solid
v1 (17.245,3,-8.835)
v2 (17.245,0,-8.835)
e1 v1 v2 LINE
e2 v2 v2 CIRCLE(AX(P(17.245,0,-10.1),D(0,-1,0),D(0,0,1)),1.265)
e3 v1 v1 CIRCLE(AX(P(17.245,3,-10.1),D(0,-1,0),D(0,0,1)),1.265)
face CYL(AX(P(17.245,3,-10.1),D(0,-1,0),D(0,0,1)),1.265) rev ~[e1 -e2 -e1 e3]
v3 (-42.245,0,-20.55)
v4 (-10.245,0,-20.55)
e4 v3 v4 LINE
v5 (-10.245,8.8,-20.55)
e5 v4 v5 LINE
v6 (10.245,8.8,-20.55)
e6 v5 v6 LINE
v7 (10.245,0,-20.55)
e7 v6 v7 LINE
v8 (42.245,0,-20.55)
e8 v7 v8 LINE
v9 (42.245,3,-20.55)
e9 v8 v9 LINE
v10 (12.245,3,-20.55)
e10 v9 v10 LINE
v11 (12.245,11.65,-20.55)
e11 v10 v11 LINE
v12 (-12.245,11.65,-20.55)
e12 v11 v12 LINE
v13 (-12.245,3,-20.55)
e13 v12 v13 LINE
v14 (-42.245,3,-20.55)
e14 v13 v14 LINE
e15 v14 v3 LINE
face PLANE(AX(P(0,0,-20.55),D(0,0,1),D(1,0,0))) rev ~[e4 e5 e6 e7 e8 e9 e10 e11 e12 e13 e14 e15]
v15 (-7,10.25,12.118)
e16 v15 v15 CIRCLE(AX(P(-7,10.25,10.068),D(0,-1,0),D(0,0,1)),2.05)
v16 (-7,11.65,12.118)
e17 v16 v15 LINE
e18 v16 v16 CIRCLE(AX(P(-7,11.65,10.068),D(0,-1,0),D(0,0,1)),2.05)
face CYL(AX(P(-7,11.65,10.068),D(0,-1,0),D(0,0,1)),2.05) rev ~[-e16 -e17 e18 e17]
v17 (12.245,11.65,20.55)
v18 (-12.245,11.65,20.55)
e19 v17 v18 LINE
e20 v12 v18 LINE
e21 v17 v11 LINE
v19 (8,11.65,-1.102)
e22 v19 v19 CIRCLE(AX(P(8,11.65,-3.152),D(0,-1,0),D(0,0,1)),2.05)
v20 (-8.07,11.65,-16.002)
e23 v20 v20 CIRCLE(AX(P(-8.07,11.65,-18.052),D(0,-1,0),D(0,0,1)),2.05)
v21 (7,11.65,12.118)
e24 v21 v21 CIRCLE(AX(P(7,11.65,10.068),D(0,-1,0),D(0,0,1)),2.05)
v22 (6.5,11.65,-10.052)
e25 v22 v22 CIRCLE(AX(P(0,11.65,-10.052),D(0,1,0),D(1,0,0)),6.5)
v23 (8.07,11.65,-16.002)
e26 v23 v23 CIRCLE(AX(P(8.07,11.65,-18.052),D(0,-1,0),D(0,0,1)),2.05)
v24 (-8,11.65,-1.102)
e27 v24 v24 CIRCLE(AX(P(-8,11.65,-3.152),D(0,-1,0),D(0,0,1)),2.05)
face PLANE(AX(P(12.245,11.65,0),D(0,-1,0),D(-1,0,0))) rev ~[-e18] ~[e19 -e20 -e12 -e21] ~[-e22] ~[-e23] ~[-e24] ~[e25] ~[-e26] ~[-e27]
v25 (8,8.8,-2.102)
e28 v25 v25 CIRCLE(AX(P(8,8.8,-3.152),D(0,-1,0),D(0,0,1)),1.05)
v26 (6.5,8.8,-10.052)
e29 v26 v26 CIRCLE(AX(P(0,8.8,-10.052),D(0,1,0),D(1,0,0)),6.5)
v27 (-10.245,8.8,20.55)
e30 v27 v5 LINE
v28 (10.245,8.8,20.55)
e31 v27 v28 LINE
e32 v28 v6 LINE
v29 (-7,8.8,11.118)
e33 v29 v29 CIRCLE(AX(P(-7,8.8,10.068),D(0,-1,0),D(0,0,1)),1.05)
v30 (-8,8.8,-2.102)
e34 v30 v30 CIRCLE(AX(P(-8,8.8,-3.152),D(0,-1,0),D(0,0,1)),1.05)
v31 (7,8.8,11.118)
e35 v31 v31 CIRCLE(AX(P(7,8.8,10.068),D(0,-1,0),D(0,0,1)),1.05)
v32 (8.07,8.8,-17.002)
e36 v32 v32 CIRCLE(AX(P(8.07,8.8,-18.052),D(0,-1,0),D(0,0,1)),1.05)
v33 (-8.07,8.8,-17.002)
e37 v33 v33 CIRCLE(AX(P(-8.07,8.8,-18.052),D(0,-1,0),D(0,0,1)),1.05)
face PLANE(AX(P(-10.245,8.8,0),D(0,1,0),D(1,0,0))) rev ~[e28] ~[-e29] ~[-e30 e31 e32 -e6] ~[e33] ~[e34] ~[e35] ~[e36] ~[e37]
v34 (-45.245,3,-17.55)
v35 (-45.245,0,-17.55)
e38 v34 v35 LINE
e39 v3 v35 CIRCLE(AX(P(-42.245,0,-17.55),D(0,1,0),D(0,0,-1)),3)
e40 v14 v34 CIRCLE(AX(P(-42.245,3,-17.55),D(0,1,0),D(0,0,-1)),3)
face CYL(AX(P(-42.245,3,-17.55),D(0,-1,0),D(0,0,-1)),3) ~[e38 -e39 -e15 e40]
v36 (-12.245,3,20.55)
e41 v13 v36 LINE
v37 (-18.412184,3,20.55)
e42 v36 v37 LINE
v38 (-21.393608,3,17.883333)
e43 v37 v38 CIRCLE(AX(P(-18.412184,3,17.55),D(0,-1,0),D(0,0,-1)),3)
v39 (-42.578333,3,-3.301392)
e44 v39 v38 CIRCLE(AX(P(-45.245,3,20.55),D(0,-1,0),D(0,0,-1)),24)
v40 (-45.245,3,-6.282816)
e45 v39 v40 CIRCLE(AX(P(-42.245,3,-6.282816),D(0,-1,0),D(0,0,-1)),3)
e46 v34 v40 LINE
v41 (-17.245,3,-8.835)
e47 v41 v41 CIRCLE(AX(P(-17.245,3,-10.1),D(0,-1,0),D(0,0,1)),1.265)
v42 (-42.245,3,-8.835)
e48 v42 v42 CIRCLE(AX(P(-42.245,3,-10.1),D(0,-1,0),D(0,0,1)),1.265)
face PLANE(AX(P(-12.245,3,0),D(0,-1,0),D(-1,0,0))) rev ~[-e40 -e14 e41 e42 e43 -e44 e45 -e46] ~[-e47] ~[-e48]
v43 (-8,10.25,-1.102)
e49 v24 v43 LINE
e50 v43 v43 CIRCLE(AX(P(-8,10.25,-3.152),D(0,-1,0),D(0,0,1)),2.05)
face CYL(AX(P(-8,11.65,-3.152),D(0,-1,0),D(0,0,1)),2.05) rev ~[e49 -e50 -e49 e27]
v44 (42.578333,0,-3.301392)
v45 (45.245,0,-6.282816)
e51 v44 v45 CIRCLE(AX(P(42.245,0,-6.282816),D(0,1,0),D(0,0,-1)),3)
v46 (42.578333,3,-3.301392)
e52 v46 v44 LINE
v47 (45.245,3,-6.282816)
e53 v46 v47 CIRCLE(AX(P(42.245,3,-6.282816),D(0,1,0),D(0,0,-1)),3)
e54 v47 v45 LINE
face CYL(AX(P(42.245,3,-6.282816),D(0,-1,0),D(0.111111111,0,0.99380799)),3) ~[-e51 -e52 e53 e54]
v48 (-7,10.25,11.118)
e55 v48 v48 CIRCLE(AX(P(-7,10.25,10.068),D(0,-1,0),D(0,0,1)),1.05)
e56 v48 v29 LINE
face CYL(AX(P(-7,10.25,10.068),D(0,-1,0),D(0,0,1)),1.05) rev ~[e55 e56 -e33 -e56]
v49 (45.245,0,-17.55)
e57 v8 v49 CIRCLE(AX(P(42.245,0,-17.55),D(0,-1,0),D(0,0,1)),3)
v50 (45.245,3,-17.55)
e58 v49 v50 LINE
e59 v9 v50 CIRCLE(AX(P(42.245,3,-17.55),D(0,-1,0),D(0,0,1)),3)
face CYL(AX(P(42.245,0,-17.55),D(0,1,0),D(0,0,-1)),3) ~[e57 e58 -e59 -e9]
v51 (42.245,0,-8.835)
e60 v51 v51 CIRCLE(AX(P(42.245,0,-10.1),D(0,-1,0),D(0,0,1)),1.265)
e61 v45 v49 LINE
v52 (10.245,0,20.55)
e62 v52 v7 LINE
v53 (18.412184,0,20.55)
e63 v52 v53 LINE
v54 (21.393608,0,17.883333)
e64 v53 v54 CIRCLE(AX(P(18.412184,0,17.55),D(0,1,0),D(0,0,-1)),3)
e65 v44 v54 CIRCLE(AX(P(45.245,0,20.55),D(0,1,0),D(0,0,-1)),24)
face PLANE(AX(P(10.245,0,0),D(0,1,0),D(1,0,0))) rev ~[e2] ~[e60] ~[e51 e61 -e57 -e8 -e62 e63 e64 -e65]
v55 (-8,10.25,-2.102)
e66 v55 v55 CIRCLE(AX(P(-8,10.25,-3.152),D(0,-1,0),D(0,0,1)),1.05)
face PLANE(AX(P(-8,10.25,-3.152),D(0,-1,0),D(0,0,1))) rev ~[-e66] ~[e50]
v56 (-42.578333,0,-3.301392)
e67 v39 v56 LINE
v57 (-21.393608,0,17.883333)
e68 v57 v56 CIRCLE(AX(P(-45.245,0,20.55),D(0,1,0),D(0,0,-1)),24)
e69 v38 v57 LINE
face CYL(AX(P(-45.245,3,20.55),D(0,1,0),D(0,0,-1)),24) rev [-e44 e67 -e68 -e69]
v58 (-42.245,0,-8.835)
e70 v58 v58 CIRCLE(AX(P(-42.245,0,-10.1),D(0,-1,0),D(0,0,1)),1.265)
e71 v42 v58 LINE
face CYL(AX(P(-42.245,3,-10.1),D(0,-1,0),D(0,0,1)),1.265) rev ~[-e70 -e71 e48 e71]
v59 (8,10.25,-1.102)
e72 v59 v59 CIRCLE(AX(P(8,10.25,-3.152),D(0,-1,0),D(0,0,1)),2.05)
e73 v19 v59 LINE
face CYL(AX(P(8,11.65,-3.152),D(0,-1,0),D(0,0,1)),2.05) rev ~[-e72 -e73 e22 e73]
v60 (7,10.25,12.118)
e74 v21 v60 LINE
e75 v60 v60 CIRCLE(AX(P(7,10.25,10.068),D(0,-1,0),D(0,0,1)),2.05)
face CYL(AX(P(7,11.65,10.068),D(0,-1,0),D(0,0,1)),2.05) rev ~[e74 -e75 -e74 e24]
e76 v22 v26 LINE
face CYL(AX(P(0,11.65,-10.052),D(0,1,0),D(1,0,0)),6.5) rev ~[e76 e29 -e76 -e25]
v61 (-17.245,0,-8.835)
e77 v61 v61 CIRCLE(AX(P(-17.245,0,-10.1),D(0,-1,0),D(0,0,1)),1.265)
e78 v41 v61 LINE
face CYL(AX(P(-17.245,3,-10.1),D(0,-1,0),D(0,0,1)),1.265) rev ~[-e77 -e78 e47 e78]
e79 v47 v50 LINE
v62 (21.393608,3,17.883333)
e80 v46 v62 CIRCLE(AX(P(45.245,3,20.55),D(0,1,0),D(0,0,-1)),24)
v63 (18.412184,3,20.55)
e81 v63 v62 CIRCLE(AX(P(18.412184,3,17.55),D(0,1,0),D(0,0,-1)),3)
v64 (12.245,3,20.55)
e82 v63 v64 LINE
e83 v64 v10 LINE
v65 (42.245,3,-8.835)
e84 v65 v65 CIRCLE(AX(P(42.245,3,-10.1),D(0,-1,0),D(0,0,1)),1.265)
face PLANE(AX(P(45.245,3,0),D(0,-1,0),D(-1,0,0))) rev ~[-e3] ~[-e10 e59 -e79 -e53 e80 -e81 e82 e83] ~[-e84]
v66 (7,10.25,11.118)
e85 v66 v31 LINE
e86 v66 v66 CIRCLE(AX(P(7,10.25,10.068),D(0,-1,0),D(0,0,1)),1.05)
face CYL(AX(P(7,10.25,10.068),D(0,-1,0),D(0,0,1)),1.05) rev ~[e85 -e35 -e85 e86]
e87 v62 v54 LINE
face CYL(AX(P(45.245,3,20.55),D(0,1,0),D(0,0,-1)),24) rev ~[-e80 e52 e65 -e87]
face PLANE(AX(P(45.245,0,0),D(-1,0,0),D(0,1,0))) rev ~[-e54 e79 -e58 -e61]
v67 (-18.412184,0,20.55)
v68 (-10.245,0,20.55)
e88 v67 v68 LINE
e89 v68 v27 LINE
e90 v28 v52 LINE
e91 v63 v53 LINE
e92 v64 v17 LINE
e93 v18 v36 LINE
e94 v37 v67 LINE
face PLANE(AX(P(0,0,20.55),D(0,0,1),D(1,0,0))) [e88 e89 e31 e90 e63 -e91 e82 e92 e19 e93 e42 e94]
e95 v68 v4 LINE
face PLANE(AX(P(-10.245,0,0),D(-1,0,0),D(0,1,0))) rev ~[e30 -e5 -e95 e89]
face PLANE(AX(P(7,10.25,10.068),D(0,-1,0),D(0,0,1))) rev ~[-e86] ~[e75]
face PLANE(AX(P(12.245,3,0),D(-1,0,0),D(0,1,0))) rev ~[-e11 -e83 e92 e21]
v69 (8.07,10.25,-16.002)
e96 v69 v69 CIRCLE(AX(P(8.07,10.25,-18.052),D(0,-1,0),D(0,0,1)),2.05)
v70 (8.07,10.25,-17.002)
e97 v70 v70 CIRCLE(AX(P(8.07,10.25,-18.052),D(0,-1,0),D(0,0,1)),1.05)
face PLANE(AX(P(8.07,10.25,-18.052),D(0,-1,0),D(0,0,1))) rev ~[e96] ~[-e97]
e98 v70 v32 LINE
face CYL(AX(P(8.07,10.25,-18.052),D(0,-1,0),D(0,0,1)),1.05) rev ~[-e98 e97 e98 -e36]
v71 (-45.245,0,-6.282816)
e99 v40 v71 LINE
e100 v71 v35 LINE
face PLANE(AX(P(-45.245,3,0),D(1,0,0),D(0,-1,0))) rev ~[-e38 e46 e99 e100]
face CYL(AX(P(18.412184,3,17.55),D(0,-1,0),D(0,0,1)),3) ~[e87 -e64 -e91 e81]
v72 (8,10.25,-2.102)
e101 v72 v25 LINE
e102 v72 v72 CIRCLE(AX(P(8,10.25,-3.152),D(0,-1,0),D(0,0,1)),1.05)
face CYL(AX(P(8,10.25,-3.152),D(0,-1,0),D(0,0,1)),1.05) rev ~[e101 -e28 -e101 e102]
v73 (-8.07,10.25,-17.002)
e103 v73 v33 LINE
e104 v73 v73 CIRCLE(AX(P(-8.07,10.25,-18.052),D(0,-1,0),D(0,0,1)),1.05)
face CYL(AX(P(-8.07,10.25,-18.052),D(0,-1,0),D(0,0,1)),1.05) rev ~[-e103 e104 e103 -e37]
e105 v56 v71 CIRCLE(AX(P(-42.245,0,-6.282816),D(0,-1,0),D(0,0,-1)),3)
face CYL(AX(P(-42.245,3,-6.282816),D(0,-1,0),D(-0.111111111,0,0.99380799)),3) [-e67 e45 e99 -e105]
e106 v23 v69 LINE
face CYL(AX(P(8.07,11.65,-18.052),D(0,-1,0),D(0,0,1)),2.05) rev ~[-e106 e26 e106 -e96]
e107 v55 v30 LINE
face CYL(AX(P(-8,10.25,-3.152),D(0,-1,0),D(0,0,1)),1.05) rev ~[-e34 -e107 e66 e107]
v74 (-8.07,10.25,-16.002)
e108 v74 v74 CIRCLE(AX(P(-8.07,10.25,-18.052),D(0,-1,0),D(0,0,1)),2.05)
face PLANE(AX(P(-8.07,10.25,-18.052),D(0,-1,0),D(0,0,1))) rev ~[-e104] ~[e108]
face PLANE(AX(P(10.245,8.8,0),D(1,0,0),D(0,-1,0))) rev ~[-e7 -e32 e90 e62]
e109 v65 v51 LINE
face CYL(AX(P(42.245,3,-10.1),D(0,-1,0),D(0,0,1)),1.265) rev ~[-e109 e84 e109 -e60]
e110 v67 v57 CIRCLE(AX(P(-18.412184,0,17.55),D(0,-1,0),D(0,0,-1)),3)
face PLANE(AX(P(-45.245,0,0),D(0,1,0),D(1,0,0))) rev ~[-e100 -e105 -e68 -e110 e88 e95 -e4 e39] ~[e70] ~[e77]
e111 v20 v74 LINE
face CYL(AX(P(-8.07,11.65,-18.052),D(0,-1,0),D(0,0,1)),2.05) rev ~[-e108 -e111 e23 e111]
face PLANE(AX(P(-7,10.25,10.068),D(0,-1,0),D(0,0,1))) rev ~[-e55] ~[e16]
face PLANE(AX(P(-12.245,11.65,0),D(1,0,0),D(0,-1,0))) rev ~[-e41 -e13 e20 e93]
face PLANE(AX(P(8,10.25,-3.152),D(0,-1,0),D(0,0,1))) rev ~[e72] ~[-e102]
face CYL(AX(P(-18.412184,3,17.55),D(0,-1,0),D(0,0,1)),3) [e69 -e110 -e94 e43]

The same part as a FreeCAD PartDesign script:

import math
import FreeCAD as App
import Part
import Sketcher
from FreeCAD import Vector


def edges_at(feature, points):
    """Names of the edges that pass closest to the given points."""
    edges = feature.Shape.Edges
    near = lambda p: min(range(len(edges)), key=lambda i: edges[i].distToShape(Part.Vertex(*p))[0])
    return sorted({f"Edge{near(p) + 1}" for p in points})

doc = App.newDocument("Part")
body = doc.addObject("PartDesign::Body", "Body")

sketch1 = body.newObject("Sketcher::SketchObject", "Sketch")
sketch1.AttachmentSupport = (doc.getObject("XY_Plane"), [""])
sketch1.MapMode = "FlatFace"
sketch1.addGeometry([
    Part.LineSegment(Vector(12.2, 11.7, 0), Vector(-12.2, 11.7, 0)),
    Part.LineSegment(Vector(-12.2, 11.7, 0), Vector(-12.2, 3, 0)),
    Part.LineSegment(Vector(-12.2, 3, 0), Vector(-45.2, 3, 0)),
    Part.LineSegment(Vector(-45.2, 3, 0), Vector(-45.2, 0, 0)),
    Part.LineSegment(Vector(-45.2, 0, 0), Vector(-10.2, 0, 0)),
    Part.LineSegment(Vector(-10.2, 0, 0), Vector(-10.2, 8.8, 0)),
    Part.LineSegment(Vector(-10.2, 8.8, 0), Vector(10.2, 8.8, 0)),
    Part.LineSegment(Vector(10.2, 8.8, 0), Vector(10.2, 0, 0)),
    Part.LineSegment(Vector(10.2, 0, 0), Vector(45.2, 0, 0)),
    Part.LineSegment(Vector(45.2, 0, 0), Vector(45.2, 3, 0)),
    Part.LineSegment(Vector(45.2, 3, 0), Vector(12.2, 3, 0)),
    Part.LineSegment(Vector(12.2, 3, 0), Vector(12.2, 11.7, 0)),
], False)
sketch1.addConstraint([
    Sketcher.Constraint("Coincident", 0, 2, 1, 1),
    Sketcher.Constraint("Coincident", 1, 2, 2, 1),
    Sketcher.Constraint("Coincident", 2, 2, 3, 1),
    Sketcher.Constraint("Coincident", 3, 2, 4, 1),
    Sketcher.Constraint("Coincident", 4, 2, 5, 1),
    Sketcher.Constraint("Coincident", 5, 2, 6, 1),
    Sketcher.Constraint("Coincident", 6, 2, 7, 1),
    Sketcher.Constraint("Coincident", 7, 2, 8, 1),
    Sketcher.Constraint("Coincident", 8, 2, 9, 1),
    Sketcher.Constraint("Coincident", 9, 2, 10, 1),
    Sketcher.Constraint("Coincident", 10, 2, 11, 1),
    Sketcher.Constraint("Coincident", 11, 2, 0, 1),
    Sketcher.Constraint("Horizontal", 0),
    Sketcher.Constraint("Vertical", 1),
    Sketcher.Constraint("Horizontal", 2),
    Sketcher.Constraint("Vertical", 3),
    Sketcher.Constraint("Horizontal", 4),
    Sketcher.Constraint("Vertical", 5),
    Sketcher.Constraint("Horizontal", 6),
    Sketcher.Constraint("Vertical", 7),
    Sketcher.Constraint("Horizontal", 8),
    Sketcher.Constraint("Vertical", 9),
    Sketcher.Constraint("Horizontal", 10),
    Sketcher.Constraint("Vertical", 11),
    Sketcher.Constraint("Symmetric", 4, 2, 7, 2, -1, 1),
    Sketcher.Constraint("Symmetric", 3, 2, 8, 2, -2),
    Sketcher.Constraint("Symmetric", 1, 2, 10, 2, -2),
    Sketcher.Constraint("DistanceX", 2, 2, 2, 1, 33.0),
    Sketcher.Constraint("DistanceX", 4, 1, 4, 2, 35.0),
    Sketcher.Constraint("DistanceY", 3, 2, 3, 1, 3.0),
    Sketcher.Constraint("DistanceX", 6, 1, 6, 2, 20.49),
    Sketcher.Constraint("DistanceY", 1, 2, 5, 2, 5.8),
    Sketcher.Constraint("DistanceY", 5, 2, 0, 2, 2.85),
])
pad1 = body.newObject("PartDesign::Pad", "Pad")
pad1.Profile = sketch1
pad1.Length = 41.1
pad1.Midplane = True

sketch2 = body.newObject("Sketcher::SketchObject", "Sketch001")
sketch2.AttachmentSupport = (doc.getObject("XZ_Plane"), [""])
sketch2.MapMode = "FlatFace"
sketch2.AttachmentOffset = App.Placement(Vector(0, 0, -3), App.Rotation())
sketch2.addGeometry([
    Part.Circle(Vector(-42.2, -10.1, 0), Vector(0, 0, 1), 1.3),
    Part.Circle(Vector(-17.2, -10.1, 0), Vector(0, 0, 1), 1.3),
    Part.Circle(Vector(17.2, -10.1, 0), Vector(0, 0, 1), 1.3),
    Part.Circle(Vector(42.2, -10.1, 0), Vector(0, 0, 1), 1.3),
], False)
sketch2.addConstraint([
    Sketcher.Constraint("Equal", 0, 1),
    Sketcher.Constraint("Equal", 1, 2),
    Sketcher.Constraint("Equal", 2, 3),
    Sketcher.Constraint("Symmetric", 1, 3, 2, 3, -2),
    Sketcher.Constraint("Symmetric", 0, 3, 3, 3, -2),
    Sketcher.Constraint("Horizontal", 0, 3, 1, 3),
    Sketcher.Constraint("Diameter", 0, 2.53),
    Sketcher.Constraint("DistanceX", 0, 3, 1, 3, 25.0),
    Sketcher.Constraint("DistanceY", 0, 3, -1, 1, 10.1),
    Sketcher.Constraint("DistanceX", 1, 3, 2, 3, 34.49),
])
doc.recompute()
hole = body.newObject("PartDesign::Hole", "Hole")
hole.Profile = sketch2
hole.ThreadType = "None"
hole.Diameter = 2.53
hole.DepthType = "ThroughAll"
hole.Reversed = True

sketch3 = body.newObject("Sketcher::SketchObject", "Sketch002")
sketch3.AttachmentSupport = (doc.getObject("XZ_Plane"), [""])
sketch3.MapMode = "FlatFace"
sketch3.AttachmentOffset = App.Placement(Vector(0, 0, -3), App.Rotation())
sketch3.addGeometry([
    Part.ArcOfCircle(Part.Circle(Vector(45, 21, 0), Vector(0, 0, 1), 24), math.radians(180), math.radians(270)),
    Part.LineSegment(Vector(21, 21, 0), Vector(45, 21, 0)),
    Part.LineSegment(Vector(45, 21, 0), Vector(45, -3, 0)),
], False)
sketch3.addConstraint([
    Sketcher.Constraint("Coincident", 0, 1, 1, 1),
    Sketcher.Constraint("Coincident", 1, 2, 2, 1),
    Sketcher.Constraint("Coincident", 2, 2, 0, 2),
    Sketcher.Constraint("Horizontal", 1),
    Sketcher.Constraint("Vertical", 2),
    Sketcher.Constraint("Coincident", 1, 2, 0, 3),
    Sketcher.Constraint("Radius", 0, 24.0),
    Sketcher.Constraint("DistanceY", -1, 1, 0, 3, 20.55),
    Sketcher.Constraint("DistanceX", -1, 1, 0, 3, 45.245),
])
pocket1 = body.newObject("PartDesign::Pocket", "Pocket")
pocket1.Profile = sketch3
pocket1.Length = 10
pocket1.Reversed = True
doc.recompute()

mirrored = body.newObject("PartDesign::Mirrored", "Mirrored")
mirrored.Originals = [pocket1]
mirrored.MirrorPlane = (doc.getObject("YZ_Plane"), [""])
body.Tip = mirrored

sketch4 = body.newObject("Sketcher::SketchObject", "Sketch003")
sketch4.AttachmentSupport = (doc.getObject("XZ_Plane"), [""])
sketch4.MapMode = "FlatFace"
sketch4.AttachmentOffset = App.Placement(Vector(0, 0, -11.65), App.Rotation())
sketch4.addGeometry(Part.Circle(Vector(0, -10, 0), Vector(0, 0, 1), 6), False)
sketch4.addConstraint([
    Sketcher.Constraint("PointOnObject", 0, 3, -2),
    Sketcher.Constraint("Diameter", 0, 13.0),
    Sketcher.Constraint("DistanceY", 0, 3, -1, 1, 10.052),
])
pocket2 = body.newObject("PartDesign::Pocket", "Pocket001")
pocket2.Profile = sketch4
pocket2.Length = 10
pocket2.Reversed = True

sketch5 = body.newObject("Sketcher::SketchObject", "Sketch004")
sketch5.AttachmentSupport = (doc.getObject("XZ_Plane"), [""])
sketch5.MapMode = "FlatFace"
sketch5.AttachmentOffset = App.Placement(Vector(0, 0, -11.65), App.Rotation())
sketch5.addGeometry([
    Part.Circle(Vector(-8, -3.2, 0), Vector(0, 0, 1), 1.1),
    Part.Circle(Vector(8, -3.2, 0), Vector(0, 0, 1), 1.1),
    Part.Circle(Vector(8.1, -18.1, 0), Vector(0, 0, 1), 1.1),
    Part.Circle(Vector(-8.1, -18.1, 0), Vector(0, 0, 1), 1.1),
    Part.Circle(Vector(-7, 10.1, 0), Vector(0, 0, 1), 1.1),
    Part.Circle(Vector(7, 10.1, 0), Vector(0, 0, 1), 1.1),
], False)
sketch5.addConstraint([
    Sketcher.Constraint("Equal", 0, 1),
    Sketcher.Constraint("Equal", 1, 2),
    Sketcher.Constraint("Equal", 2, 3),
    Sketcher.Constraint("Equal", 3, 4),
    Sketcher.Constraint("Equal", 4, 5),
    Sketcher.Constraint("Symmetric", 0, 3, 1, 3, -2),
    Sketcher.Constraint("Symmetric", 2, 3, 3, 3, -2),
    Sketcher.Constraint("Symmetric", 4, 3, 5, 3, -2),
    Sketcher.Constraint("Diameter", 0, 2.1),
    Sketcher.Constraint("DistanceX", 0, 3, -1, 1, 8.0),
    Sketcher.Constraint("DistanceX", 4, 3, -1, 1, 7.0),
    Sketcher.Constraint("DistanceY", 2, 3, 1, 3, 14.9),
    Sketcher.Constraint("DistanceX", -1, 1, 2, 3, 8.07),
    Sketcher.Constraint("DistanceY", 0, 3, 4, 3, 13.22),
    Sketcher.Constraint("DistanceY", 0, 3, -1, 1, 3.152),
])
doc.recompute()
hole2 = body.newObject("PartDesign::Hole", "Hole001")
hole2.Profile = sketch5
hole2.ThreadType = "None"
hole2.Diameter = 2.1
hole2.DepthType = "ThroughAll"
hole2.HoleCutType = "Counterbore"
hole2.HoleCutDiameter = 4.1
hole2.HoleCutDepth = 1.4
hole2.Reversed = True
doc.recompute()

fillet = body.newObject("PartDesign::Fillet", "Fillet")
fillet.Base = (hole2, edges_at(hole2, [
    (45.245, 1.5, -20.55),
    (45.245, 1.5, -3.45),
    (21.245, 1.5, 20.55),
    (-21.245, 1.5, 20.55),
    (-45.245, 1.5, -3.45),
    (-45.245, 1.5, -20.55),
]))
fillet.Radius = 3

doc.recompute()
